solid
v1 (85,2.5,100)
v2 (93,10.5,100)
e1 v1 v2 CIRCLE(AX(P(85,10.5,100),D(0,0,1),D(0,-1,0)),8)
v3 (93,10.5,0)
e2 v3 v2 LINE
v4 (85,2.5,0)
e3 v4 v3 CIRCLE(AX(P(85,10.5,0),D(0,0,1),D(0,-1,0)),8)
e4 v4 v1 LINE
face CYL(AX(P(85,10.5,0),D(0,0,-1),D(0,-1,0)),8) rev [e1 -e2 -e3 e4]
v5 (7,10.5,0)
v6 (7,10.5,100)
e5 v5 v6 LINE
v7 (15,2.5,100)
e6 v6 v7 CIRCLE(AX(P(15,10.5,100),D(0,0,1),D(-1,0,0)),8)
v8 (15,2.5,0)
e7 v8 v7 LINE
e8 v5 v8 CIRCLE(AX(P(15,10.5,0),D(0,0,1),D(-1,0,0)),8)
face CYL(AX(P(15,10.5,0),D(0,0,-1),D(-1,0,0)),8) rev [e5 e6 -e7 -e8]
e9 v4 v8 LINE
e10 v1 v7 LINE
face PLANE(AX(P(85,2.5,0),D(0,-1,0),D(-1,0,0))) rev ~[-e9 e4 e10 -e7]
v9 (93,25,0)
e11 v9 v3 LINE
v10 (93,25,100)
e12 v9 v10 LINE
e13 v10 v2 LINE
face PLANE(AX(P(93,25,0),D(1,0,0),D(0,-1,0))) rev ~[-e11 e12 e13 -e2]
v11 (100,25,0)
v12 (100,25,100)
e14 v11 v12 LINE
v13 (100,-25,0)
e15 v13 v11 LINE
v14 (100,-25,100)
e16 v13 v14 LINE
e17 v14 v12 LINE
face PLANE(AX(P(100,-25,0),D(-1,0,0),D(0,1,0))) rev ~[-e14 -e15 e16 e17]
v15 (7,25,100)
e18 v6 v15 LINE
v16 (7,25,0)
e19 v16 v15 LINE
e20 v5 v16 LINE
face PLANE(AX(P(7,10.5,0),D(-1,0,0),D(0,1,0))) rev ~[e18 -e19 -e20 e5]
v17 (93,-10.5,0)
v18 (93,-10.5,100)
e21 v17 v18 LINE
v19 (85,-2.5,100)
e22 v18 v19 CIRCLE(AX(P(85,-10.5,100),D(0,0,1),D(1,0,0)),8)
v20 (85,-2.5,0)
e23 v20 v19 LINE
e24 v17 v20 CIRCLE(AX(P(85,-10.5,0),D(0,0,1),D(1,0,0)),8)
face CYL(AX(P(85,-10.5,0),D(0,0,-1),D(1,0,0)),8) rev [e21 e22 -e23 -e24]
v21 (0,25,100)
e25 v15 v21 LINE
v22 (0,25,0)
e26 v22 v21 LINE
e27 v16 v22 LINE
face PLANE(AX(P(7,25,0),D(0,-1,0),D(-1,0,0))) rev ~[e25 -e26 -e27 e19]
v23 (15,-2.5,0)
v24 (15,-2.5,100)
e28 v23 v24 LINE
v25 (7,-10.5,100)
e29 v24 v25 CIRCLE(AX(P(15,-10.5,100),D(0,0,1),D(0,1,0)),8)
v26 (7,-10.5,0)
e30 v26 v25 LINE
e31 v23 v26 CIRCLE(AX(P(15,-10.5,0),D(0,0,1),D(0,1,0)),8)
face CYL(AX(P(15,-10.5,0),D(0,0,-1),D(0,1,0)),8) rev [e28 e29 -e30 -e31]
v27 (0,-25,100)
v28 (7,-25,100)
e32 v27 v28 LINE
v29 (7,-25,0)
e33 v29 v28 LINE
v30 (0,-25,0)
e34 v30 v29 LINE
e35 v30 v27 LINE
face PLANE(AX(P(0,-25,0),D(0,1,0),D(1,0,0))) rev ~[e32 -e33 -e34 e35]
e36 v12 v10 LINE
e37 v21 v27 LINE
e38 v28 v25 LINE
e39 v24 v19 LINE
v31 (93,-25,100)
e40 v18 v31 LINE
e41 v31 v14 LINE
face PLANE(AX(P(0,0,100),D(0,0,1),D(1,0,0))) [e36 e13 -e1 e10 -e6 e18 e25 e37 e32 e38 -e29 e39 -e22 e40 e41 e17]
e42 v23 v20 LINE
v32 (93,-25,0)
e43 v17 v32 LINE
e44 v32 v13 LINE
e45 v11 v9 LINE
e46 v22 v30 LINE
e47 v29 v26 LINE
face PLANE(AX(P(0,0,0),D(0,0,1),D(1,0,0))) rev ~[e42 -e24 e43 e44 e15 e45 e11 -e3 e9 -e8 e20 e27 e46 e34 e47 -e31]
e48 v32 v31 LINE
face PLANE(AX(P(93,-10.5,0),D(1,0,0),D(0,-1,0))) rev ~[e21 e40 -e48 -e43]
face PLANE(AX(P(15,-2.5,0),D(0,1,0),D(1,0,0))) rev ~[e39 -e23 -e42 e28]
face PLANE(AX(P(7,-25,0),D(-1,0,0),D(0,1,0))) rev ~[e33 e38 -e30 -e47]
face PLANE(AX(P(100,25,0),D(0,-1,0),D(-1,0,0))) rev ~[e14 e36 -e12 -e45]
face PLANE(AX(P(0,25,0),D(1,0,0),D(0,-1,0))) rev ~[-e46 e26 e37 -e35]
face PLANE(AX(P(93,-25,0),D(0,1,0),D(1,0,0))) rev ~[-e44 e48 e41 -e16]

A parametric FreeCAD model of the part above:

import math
import FreeCAD as App
import Part
import Sketcher
Q = App.Units.Quantity

doc = App.newDocument("Part")
body = doc.addObject("PartDesign::Body", "Body")

# Sketch on XY plane
sketch1 = doc.addObject("Sketcher::SketchObject", "Sketch")
body.addObject(sketch1)
sketch1.AttachmentSupport = (doc.XY_Plane, [""])
sketch1.MapMode = "FlatFace"
sketch1.addGeometry(Part.LineSegment(App.Vector(7, 25, 0), App.Vector(0, 25, 0)), False)
sketch1.addGeometry(Part.LineSegment(App.Vector(0, 25, 0), App.Vector(0, -25, 0)), False)
sketch1.addGeometry(Part.LineSegment(App.Vector(0, -25, 0), App.Vector(7, -25, 0)), False)
sketch1.addGeometry(Part.LineSegment(App.Vector(7, -25, 0), App.Vector(7, -10.5, 0)), False)
sketch1.addGeometry(Part.ArcOfCircle(Part.Circle(App.Vector(15, -10.5, 0), App.Vector(0, 0, 1), 8), math.radians(90), math.radians(180)), False)
sketch1.addGeometry(Part.LineSegment(App.Vector(15, -2.5, 0), App.Vector(85, -2.5, 0)), False)
sketch1.addGeometry(Part.ArcOfCircle(Part.Circle(App.Vector(85, -10.5, 0), App.Vector(0, 0, 1), 8), math.radians(0), math.radians(90)), False)
sketch1.addGeometry(Part.LineSegment(App.Vector(93, -10.5, 0), App.Vector(93, -25, 0)), False)
sketch1.addGeometry(Part.LineSegment(App.Vector(93, -25, 0), App.Vector(100, -25, 0)), False)
sketch1.addGeometry(Part.LineSegment(App.Vector(100, -25, 0), App.Vector(100, 25, 0)), False)
sketch1.addGeometry(Part.LineSegment(App.Vector(100, 25, 0), App.Vector(93, 25, 0)), False)
sketch1.addGeometry(Part.LineSegment(App.Vector(93, 25, 0), App.Vector(93, 10.5, 0)), False)
sketch1.addGeometry(Part.ArcOfCircle(Part.Circle(App.Vector(85, 10.5, 0), App.Vector(0, 0, 1), 8), math.radians(-90), math.radians(0)), False)
sketch1.addGeometry(Part.LineSegment(App.Vector(85, 2.5, 0), App.Vector(15, 2.5, 0)), False)
sketch1.addGeometry(Part.ArcOfCircle(Part.Circle(App.Vector(15, 10.5, 0), App.Vector(0, 0, 1), 8), math.radians(180), math.radians(270)), False)
sketch1.addGeometry(Part.LineSegment(App.Vector(7, 10.5, 0), App.Vector(7, 25, 0)), False)
sketch1.addConstraint(Sketcher.Constraint("Coincident", 0, 2, 1, 1))
sketch1.addConstraint(Sketcher.Constraint("Coincident", 1, 2, 2, 1))
sketch1.addConstraint(Sketcher.Constraint("Coincident", 2, 2, 3, 1))
sketch1.addConstraint(Sketcher.Constraint("Tangent", 3, 2, 4, 2))
sketch1.addConstraint(Sketcher.Constraint("Tangent", 4, 1, 5, 1))
sketch1.addConstraint(Sketcher.Constraint("Tangent", 5, 2, 6, 2))
sketch1.addConstraint(Sketcher.Constraint("Tangent", 6, 1, 7, 1))
sketch1.addConstraint(Sketcher.Constraint("Coincident", 7, 2, 8, 1))
sketch1.addConstraint(Sketcher.Constraint("Coincident", 8, 2, 9, 1))
sketch1.addConstraint(Sketcher.Constraint("Coincident", 9, 2, 10, 1))
sketch1.addConstraint(Sketcher.Constraint("Coincident", 10, 2, 11, 1))
sketch1.addConstraint(Sketcher.Constraint("Tangent", 11, 2, 12, 2))
sketch1.addConstraint(Sketcher.Constraint("Tangent", 12, 1, 13, 1))
sketch1.addConstraint(Sketcher.Constraint("Tangent", 13, 2, 14, 2))
sketch1.addConstraint(Sketcher.Constraint("Tangent", 14, 1, 15, 1))
sketch1.addConstraint(Sketcher.Constraint("Coincident", 15, 2, 0, 1))
sketch1.addConstraint(Sketcher.Constraint("Horizontal", 0))
sketch1.addConstraint(Sketcher.Constraint("Vertical", 1))
sketch1.addConstraint(Sketcher.Constraint("Horizontal", 2))
sketch1.addConstraint(Sketcher.Constraint("Vertical", 3))
sketch1.addConstraint(Sketcher.Constraint("Horizontal", 5))
sketch1.addConstraint(Sketcher.Constraint("Vertical", 7))
sketch1.addConstraint(Sketcher.Constraint("Horizontal", 8))
sketch1.addConstraint(Sketcher.Constraint("Vertical", 9))
sketch1.addConstraint(Sketcher.Constraint("Horizontal", 10))
sketch1.addConstraint(Sketcher.Constraint("Vertical", 11))
sketch1.addConstraint(Sketcher.Constraint("Horizontal", 13))
sketch1.addConstraint(Sketcher.Constraint("Vertical", 15))
sketch1.addConstraint(Sketcher.Constraint("Equal", 4, 6))
sketch1.addConstraint(Sketcher.Constraint("Equal", 6, 12))
sketch1.addConstraint(Sketcher.Constraint("Equal", 12, 14))
sketch1.addConstraint(Sketcher.Constraint("Symmetric", 0, 2, 1, 2, -1, 1))
sketch1.addConstraint(Sketcher.Constraint("Symmetric", 6, 3, 12, 3, -1))
sketch1.addConstraint(Sketcher.Constraint("Horizontal", 2, 2, 7, 2))
sketch1.addConstraint(Sketcher.Constraint("Horizontal", 0, 2, 9, 2))
sketch1.addConstraint(Sketcher.Constraint("Vertical", 4, 3, 14, 3))
sketch1.addConstraint(Sketcher.Constraint("Equal", 2, 8))
sketch1.addConstraint(Sketcher.Constraint("Radius", 4, Q("8 mm")))
sketch1.addConstraint(Sketcher.Constraint("DistanceX", 0, 2, 0, 1, Q("7 mm")))
sketch1.addConstraint(Sketcher.Constraint("DistanceX", 5, 1, 5, 2, Q("70 mm")))
sketch1.addConstraint(Sketcher.Constraint("DistanceY", 1, 2, 1, 1, Q("50 mm")))
sketch1.addConstraint(Sketcher.Constraint("DistanceY", 3, 1, 3, 2, Q("14.5 mm")))
pad1 = doc.addObject("PartDesign::Pad", "Pad")
body.addObject(pad1)
pad1.Profile = sketch1
pad1.Length = 100

doc.recompute()
